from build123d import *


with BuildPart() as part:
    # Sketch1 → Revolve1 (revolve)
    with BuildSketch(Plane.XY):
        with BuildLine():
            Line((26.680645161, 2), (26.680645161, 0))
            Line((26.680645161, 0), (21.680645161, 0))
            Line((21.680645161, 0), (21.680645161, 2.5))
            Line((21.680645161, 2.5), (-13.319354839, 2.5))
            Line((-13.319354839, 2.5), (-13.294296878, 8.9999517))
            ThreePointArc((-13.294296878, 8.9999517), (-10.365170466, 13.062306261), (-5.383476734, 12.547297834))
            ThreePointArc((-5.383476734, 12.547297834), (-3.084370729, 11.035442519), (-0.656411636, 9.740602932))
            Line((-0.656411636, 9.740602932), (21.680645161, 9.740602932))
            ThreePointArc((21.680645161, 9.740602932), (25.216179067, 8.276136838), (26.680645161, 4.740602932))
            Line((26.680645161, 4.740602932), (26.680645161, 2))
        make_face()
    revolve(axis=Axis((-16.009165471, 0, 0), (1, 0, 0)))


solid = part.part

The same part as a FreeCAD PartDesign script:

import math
import FreeCAD as App
import Part
import Sketcher

V = App.Vector
Q = App.Units.Quantity

doc = App.newDocument("Part")
params = doc.addObject("Spreadsheet::Sheet", "Params")
for row, (alias, value) in enumerate([
    ("sketch1_radius", "5 mm"),
    ("sketch1_radius2", "30 mm"),
    ("sketch1_width", "35 mm"),
    ("sketch1_height", "2.5 mm"),
    ("sketch1_length", "6.5 mm"),
    ("revolution_angle", "360 deg"),
], start=1):
    params.set(f"A{row}", alias)
    params.set(f"B{row}", "=" + value)
    params.setAlias(f"B{row}", alias)

body = doc.addObject("PartDesign::Body", "Body")

# Sketch on XY plane
sketch1 = body.newObject("Sketcher::SketchObject", "Sketch")
sketch1.AttachmentSupport = (doc.getObject("XY_Plane"), [""])
sketch1.MapMode = "FlatFace"
sketch1.addGeometry([
    Part.LineSegment(V(21.7, 0, 0), V(26.7, 0, 0)),  # 0
    Part.LineSegment(V(26.7, 0, 0), V(26.7, 4.7, 0)),  # 1
    Part.ArcOfCircle(Part.Circle(V(21.7, 4.7, 0), V(0, 0, 1), 5), math.radians(0), math.radians(90)),  # 2
    Part.LineSegment(V(21.7, 9.7, 0), V(-0.7, 9.7, 0)),  # 3
    Part.ArcOfCircle(Part.Circle(V(12.2, 36.8, 0), V(0, 0, 1), 30), math.radians(-125.96), math.radians(-115.44)),  # 4
    Part.ArcOfCircle(Part.Circle(V(-8.3, 8.5, 0), V(0, 0, 1), 5), math.radians(54), math.radians(174)),  # 5
    Part.LineSegment(V(-13.3, 9, 0), V(-13.3, 2.5, 0)),  # 6
    Part.LineSegment(V(-13.3, 2.5, 0), V(21.7, 2.5, 0)),  # 7
    Part.LineSegment(V(21.7, 2.5, 0), V(21.7, 0, 0)),  # 8
], False)
sketch1.addConstraint([
    Sketcher.Constraint("Coincident", 0, 2, 1, 1),
    Sketcher.Constraint("Tangent", 1, 2, 2, 1),
    Sketcher.Constraint("Tangent", 2, 2, 3, 1),
    Sketcher.Constraint("Coincident", 3, 2, 4, 2),
    Sketcher.Constraint("Tangent", 4, 1, 5, 1),
    Sketcher.Constraint("Coincident", 5, 2, 6, 1),
    Sketcher.Constraint("Coincident", 6, 2, 7, 1),
    Sketcher.Constraint("Coincident", 7, 2, 8, 1),
    Sketcher.Constraint("Coincident", 8, 2, 0, 1),
    Sketcher.Constraint("Horizontal", 0),
    Sketcher.Constraint("Vertical", 1),
    Sketcher.Constraint("Horizontal", 3),
    Sketcher.Constraint("Horizontal", 7),
    Sketcher.Constraint("Vertical", 8),
    Sketcher.Constraint("Equal", 2, 5),
    Sketcher.Constraint("PointOnObject", 0, 2, -1),
    Sketcher.Constraint("Vertical", 2, 2, 7, 2),
    Sketcher.Constraint("Radius", 2, Q("5 mm")),
    Sketcher.Constraint("Radius", 4, Q("30 mm")),
    Sketcher.Constraint("DistanceX", 7, 1, 7, 2, Q("35 mm")),
    Sketcher.Constraint("DistanceY", 8, 2, 8, 1, Q("2.5 mm")),
    Sketcher.Constraint("DistanceX", 5, 3, 2, 3, Q("30 mm")),
    Sketcher.Constraint("DistanceY", 6, 2, 5, 3, Q("6 mm")),
    Sketcher.Constraint("Distance", 6, Q("6.5 mm")),
    Sketcher.Constraint("DistanceX", 3, 2, 3, 1, Q("22.337057 mm")),
    Sketcher.Constraint("DistanceY", 1, 1, 1, 2, Q("4.740603 mm")),
    Sketcher.Constraint("DistanceX", -1, 1, 4, 3, Q("12.231792 mm")),
])
sketch1.setExpression("Constraints[17]", "Params.sketch1_radius")
sketch1.setExpression("Constraints[18]", "Params.sketch1_radius2")
sketch1.setExpression("Constraints[19]", "Params.sketch1_width")
sketch1.setExpression("Constraints[20]", "Params.sketch1_height")
sketch1.setExpression("Constraints[23]", "Params.sketch1_length")
revolution = body.newObject("PartDesign::Revolution", "Revolution")
revolution.Profile = sketch1
revolution.ReferenceAxis = (sketch1, ["H_Axis"])
revolution.setExpression("Angle", "Params.revolution_angle")

doc.recompute()
